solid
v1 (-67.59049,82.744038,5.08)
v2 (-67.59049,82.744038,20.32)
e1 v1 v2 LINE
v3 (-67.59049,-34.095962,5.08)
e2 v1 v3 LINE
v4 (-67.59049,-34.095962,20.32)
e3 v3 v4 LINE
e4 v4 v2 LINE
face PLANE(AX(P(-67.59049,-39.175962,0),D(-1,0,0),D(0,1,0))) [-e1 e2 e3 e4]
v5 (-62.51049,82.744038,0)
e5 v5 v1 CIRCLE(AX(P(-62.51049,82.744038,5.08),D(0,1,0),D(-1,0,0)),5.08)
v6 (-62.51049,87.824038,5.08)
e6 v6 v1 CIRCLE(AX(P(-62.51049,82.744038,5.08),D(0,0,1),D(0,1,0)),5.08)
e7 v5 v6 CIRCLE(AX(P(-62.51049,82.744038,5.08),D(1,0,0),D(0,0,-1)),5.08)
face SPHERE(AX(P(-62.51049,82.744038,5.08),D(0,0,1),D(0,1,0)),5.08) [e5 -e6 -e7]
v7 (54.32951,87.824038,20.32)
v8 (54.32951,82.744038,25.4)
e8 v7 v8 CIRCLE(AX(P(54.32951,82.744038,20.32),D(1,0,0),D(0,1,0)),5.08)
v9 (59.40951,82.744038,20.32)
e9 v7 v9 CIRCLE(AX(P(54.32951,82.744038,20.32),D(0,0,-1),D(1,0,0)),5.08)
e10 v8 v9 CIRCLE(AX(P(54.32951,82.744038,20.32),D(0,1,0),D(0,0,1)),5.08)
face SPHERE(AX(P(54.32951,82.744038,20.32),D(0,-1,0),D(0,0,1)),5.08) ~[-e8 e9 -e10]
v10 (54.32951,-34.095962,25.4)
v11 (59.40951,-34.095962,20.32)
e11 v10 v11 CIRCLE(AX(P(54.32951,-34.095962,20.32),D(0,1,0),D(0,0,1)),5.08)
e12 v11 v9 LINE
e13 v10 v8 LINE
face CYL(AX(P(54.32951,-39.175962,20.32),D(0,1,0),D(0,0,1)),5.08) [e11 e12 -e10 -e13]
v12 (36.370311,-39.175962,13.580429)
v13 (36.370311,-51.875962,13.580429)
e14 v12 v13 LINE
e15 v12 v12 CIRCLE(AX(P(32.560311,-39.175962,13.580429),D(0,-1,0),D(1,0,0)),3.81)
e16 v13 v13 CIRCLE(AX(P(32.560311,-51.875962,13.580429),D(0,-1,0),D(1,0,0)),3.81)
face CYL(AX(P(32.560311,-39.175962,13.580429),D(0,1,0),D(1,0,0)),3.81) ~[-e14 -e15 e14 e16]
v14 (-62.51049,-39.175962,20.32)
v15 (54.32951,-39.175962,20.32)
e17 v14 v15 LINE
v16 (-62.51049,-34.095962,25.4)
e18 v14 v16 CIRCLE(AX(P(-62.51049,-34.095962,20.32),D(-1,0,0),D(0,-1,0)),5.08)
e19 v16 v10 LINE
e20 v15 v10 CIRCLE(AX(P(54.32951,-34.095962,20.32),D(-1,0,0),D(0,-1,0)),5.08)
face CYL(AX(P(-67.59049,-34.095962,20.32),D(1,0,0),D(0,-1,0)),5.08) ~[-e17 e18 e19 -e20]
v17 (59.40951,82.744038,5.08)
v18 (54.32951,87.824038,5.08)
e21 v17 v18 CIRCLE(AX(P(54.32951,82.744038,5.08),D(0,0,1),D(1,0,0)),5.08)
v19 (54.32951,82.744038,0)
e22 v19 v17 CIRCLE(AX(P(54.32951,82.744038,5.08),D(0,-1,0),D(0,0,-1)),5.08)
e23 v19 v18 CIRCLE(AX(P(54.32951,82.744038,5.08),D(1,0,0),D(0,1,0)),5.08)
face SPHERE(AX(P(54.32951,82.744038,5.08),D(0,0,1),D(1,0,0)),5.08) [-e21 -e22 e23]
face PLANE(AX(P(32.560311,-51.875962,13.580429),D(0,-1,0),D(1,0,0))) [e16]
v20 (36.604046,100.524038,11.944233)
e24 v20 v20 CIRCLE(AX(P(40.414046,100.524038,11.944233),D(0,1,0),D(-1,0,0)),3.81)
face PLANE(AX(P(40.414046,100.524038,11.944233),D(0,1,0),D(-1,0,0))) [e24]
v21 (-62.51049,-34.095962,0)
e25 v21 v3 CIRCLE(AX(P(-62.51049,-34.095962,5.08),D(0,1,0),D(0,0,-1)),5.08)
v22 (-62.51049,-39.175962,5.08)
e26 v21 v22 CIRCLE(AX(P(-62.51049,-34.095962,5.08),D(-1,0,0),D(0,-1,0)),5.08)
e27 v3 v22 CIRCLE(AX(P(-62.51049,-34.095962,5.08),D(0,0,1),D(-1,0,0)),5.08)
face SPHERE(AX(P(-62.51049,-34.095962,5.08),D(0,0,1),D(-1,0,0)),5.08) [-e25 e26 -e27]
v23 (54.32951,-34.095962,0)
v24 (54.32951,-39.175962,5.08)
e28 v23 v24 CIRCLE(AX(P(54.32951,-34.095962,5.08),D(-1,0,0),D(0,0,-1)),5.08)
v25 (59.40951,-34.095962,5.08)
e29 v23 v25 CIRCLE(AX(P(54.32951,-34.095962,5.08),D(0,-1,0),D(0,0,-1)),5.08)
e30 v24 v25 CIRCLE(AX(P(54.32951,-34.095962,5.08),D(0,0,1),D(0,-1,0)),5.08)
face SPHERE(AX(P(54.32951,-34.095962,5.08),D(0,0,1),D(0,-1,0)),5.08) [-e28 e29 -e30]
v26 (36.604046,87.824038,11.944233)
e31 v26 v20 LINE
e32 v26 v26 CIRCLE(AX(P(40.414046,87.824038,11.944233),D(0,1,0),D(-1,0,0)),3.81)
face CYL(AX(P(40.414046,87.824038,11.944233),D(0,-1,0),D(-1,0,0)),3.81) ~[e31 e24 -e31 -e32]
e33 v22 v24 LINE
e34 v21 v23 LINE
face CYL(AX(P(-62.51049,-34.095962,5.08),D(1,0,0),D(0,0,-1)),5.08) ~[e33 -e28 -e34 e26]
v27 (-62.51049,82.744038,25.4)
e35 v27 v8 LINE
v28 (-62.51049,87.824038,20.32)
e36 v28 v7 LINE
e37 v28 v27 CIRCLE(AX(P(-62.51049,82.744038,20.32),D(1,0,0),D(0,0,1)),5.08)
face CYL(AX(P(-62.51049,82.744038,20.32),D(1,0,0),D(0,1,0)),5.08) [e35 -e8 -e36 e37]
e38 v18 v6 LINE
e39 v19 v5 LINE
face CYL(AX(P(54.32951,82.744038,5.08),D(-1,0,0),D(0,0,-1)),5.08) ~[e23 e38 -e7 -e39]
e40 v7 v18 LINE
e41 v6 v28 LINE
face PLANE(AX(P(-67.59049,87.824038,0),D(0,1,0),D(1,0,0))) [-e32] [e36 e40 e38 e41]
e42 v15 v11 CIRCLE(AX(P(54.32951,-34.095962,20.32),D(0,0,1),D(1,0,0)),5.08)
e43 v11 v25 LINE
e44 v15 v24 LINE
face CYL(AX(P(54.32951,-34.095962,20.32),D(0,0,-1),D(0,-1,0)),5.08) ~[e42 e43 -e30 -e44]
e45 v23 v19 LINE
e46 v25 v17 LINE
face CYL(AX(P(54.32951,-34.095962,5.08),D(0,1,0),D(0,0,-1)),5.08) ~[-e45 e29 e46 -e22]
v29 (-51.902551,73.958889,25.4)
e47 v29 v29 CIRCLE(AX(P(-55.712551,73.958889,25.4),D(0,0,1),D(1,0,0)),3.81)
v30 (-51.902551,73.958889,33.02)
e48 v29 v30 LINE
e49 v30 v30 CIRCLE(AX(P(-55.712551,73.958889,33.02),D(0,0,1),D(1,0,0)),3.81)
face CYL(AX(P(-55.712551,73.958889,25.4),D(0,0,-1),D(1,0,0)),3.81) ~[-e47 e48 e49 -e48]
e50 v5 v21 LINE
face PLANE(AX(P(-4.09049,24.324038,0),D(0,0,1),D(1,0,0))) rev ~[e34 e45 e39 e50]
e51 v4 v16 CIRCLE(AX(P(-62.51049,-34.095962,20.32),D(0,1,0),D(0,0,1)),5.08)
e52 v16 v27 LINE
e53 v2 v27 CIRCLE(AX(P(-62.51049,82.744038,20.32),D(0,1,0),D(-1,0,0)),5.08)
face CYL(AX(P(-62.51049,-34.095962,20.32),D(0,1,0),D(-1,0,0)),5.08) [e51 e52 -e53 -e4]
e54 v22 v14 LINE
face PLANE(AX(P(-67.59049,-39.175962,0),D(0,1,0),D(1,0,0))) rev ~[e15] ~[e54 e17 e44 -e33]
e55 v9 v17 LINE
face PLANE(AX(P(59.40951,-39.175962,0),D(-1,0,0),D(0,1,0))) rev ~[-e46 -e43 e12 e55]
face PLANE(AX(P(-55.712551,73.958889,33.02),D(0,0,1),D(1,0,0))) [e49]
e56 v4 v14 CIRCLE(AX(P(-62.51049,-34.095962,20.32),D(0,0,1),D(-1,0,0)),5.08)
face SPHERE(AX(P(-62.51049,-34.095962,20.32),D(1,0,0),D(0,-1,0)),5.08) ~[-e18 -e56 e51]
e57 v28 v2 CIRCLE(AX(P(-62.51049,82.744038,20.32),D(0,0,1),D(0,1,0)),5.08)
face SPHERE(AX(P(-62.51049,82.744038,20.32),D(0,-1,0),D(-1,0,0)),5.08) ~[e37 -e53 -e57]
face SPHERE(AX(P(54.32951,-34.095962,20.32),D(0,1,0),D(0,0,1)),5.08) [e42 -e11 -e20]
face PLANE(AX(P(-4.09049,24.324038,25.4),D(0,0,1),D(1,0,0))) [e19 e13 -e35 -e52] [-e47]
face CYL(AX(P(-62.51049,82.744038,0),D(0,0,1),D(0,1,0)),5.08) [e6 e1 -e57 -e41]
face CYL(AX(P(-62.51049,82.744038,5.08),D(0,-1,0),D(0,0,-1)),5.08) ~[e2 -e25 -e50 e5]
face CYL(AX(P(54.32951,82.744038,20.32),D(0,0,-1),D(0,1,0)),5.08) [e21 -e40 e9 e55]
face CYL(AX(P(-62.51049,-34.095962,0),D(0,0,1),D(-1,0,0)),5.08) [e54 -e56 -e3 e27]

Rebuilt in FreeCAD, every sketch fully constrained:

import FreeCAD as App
import Part
import Sketcher

V = App.Vector
Q = App.Units.Quantity


def edges_at(feature, points):
    """Names of the edges that pass closest to the given points."""
    edges = feature.Shape.Edges
    near = lambda p: min(range(len(edges)), key=lambda i: edges[i].distToShape(Part.Vertex(*p))[0])
    return sorted({f"Edge{near(p) + 1}" for p in points})


def add_polygon(sketch, points):
    """Adds a closed chain of lines whose ends are joined by coincident constraints."""
    first, n = sketch.GeometryCount, len(points)
    for a, b in zip(points, points[1:] + points[:1]):
        sketch.addGeometry(Part.LineSegment(App.Vector(*a, 0), App.Vector(*b, 0)), False)
    for i in range(n):
        sketch.addConstraint(Sketcher.Constraint("Coincident", first + i, 2, first + (i + 1) % n, 1))

doc = App.newDocument("Part")
body = doc.addObject("PartDesign::Body", "Body")

sketch1 = body.newObject("Sketcher::SketchObject", "Sketch")
sketch1.AttachmentSupport = (doc.getObject("XY_Plane"), [""])
sketch1.MapMode = "FlatFace"
add_polygon(sketch1, [(-68, 88), (-68, -39), (59, -39), (59, 88)])
sketch1.addConstraint([
    Sketcher.Constraint("Vertical", 0),
    Sketcher.Constraint("Horizontal", 1),
    Sketcher.Constraint("Vertical", 2),
    Sketcher.Constraint("Horizontal", 3),
    Sketcher.Constraint("Equal", 3, 0),
    Sketcher.Constraint("DistanceX", 1, 1, 1, 2, Q("5 in")),
    Sketcher.Constraint("DistanceX", 0, 2, -1, 1, Q("67.59049 mm")),
    Sketcher.Constraint("DistanceY", 0, 2, -1, 1, Q("39.175962 mm")),
])
pad1 = body.newObject("PartDesign::Pad", "Pad")
pad1.Profile = sketch1
pad1.Length = Q("1 in")

sketch2 = body.newObject("Sketcher::SketchObject", "Sketch001")
sketch2.AttachmentSupport = (doc.getObject("XY_Plane"), [""])
sketch2.MapMode = "FlatFace"
sketch2.AttachmentOffset = App.Placement(V(0, 0, 1 * 25.4), App.Rotation())
sketch2.addGeometry(Part.Circle(V(-55.7, 74, 0), V(0, 0, 1), 3.8), False)
sketch2.addConstraint([
    Sketcher.Constraint("Diameter", 0, Q("0.3 in")),
    Sketcher.Constraint("DistanceX", 0, 3, -1, 1, Q("55.712551 mm")),
    Sketcher.Constraint("DistanceY", -1, 1, 0, 3, Q("73.958889 mm")),
])
pad2 = body.newObject("PartDesign::Pad", "Pad001")
pad2.Profile = sketch2
pad2.Length = Q("0.3 in")
doc.recompute()

fillet = body.newObject("PartDesign::Fillet", "Fillet")
fillet.Base = (pad2, edges_at(pad2, [(59.41, 24.324, 25.4)]))
fillet.Radius = Q("0.2 in")
doc.recompute()

fillet2 = body.newObject("PartDesign::Fillet", "Fillet001")
fillet2.Base = (fillet, edges_at(fillet, [(-6.63, -39.176, 25.4)]))
fillet2.Radius = Q("0.2 in")
doc.recompute()

fillet3 = body.newObject("PartDesign::Fillet", "Fillet002")
fillet3.Base = (fillet2, edges_at(fillet2, [(-67.59, 26.864, 25.4)]))
fillet3.Radius = Q("0.2 in")
doc.recompute()

fillet4 = body.newObject("PartDesign::Fillet", "Fillet003")
fillet4.Base = (fillet3, edges_at(fillet3, [(-4.09, 87.824, 25.4)]))
fillet4.Radius = Q("0.2 in")
doc.recompute()

fillet5 = body.newObject("PartDesign::Fillet", "Fillet004")
fillet5.Base = (fillet4, edges_at(fillet4, [(59.41, 24.324, 0)]))
fillet5.Radius = Q("0.2 in")

sketch3 = body.newObject("Sketcher::SketchObject", "Sketch002")
sketch3.AttachmentSupport = (doc.getObject("XZ_Plane"), [""])
sketch3.MapMode = "FlatFace"
sketch3.AttachmentOffset = App.Placement(V(0, 0, 39.175962), App.Rotation())
sketch3.addGeometry(Part.Circle(V(32.6, 13.6, 0), V(0, 0, 1), 3.8), False)
sketch3.addConstraint([
    Sketcher.Constraint("Diameter", 0, Q("0.3 in")),
    Sketcher.Constraint("DistanceX", -1, 1, 0, 3, Q("32.560311 mm")),
    Sketcher.Constraint("DistanceY", -1, 1, 0, 3, Q("13.580429 mm")),
])
pad3 = body.newObject("PartDesign::Pad", "Pad002")
pad3.Profile = sketch3
pad3.Length = Q("0.5 in")

sketch4 = body.newObject("Sketcher::SketchObject", "Sketch003")
sketch4.AttachmentSupport = (doc.getObject("XZ_Plane"), [""])
sketch4.MapMode = "FlatFace"
sketch4.AttachmentOffset = App.Placement(V(0, 0, -87.824038), App.Rotation())
sketch4.addGeometry(Part.Circle(V(40.4, 11.9, 0), V(0, 0, 1), 3.8), False)
sketch4.addConstraint([
    Sketcher.Constraint("Diameter", 0, Q("0.3 in")),
    Sketcher.Constraint("DistanceX", -1, 1, 0, 3, Q("40.414046 mm")),
    Sketcher.Constraint("DistanceY", -1, 1, 0, 3, Q("11.944233 mm")),
])
pad4 = body.newObject("PartDesign::Pad", "Pad003")
pad4.Profile = sketch4
pad4.Length = Q("0.5 in")
pad4.Reversed = True

doc.recompute()
